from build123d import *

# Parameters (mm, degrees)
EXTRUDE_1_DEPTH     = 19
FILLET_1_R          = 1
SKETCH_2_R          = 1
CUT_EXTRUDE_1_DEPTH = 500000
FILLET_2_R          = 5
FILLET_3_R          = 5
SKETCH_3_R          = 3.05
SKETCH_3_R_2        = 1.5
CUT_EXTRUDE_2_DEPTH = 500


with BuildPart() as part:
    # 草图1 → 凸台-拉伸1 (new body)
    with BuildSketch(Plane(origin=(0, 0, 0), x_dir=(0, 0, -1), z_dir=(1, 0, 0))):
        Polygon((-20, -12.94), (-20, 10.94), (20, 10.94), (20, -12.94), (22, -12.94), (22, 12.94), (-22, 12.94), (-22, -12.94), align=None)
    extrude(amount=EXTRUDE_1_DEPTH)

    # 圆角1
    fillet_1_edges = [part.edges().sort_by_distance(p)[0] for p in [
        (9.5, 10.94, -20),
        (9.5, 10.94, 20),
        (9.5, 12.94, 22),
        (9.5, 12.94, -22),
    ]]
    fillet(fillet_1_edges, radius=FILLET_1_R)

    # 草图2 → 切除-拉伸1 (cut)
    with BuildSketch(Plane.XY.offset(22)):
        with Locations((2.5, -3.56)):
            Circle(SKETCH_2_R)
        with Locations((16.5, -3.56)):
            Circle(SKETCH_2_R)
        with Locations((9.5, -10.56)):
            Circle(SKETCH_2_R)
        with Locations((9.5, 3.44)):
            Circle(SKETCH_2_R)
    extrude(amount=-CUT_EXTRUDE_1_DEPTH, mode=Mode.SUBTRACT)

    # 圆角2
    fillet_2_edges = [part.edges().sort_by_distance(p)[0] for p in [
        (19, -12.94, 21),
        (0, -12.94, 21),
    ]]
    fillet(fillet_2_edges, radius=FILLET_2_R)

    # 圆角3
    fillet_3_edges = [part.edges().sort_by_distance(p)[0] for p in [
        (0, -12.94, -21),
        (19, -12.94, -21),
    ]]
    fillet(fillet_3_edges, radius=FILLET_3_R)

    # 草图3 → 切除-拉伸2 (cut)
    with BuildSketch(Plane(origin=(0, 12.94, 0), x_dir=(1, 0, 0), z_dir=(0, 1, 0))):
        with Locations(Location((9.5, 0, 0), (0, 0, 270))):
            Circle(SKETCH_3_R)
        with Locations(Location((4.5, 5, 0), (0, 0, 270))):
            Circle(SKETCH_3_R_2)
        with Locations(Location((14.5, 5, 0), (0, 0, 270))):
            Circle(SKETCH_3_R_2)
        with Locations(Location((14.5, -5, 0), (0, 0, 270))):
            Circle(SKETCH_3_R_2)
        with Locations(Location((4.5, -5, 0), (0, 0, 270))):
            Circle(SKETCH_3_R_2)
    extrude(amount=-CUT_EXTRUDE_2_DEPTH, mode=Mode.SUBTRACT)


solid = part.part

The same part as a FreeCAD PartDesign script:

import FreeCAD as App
import Part
import Sketcher
from FreeCAD import Vector


def edges_at(feature, points):
    """Names of the edges that pass closest to the given points."""
    edges = feature.Shape.Edges
    near = lambda p: min(range(len(edges)), key=lambda i: edges[i].distToShape(Part.Vertex(*p))[0])
    return sorted({f"Edge{near(p) + 1}" for p in points})


def add_polygon(sketch, points):
    """Adds a closed chain of lines whose ends are joined by coincident constraints."""
    first, n = sketch.GeometryCount, len(points)
    for a, b in zip(points, points[1:] + points[:1]):
        sketch.addGeometry(Part.LineSegment(App.Vector(*a, 0), App.Vector(*b, 0)), False)
    for i in range(n):
        sketch.addConstraint(Sketcher.Constraint("Coincident", first + i, 2, first + (i + 1) % n, 1))

doc = App.newDocument("Part")
body = doc.addObject("PartDesign::Body", "Body")

# Sketch on YZ plane
sketch1 = doc.addObject("Sketcher::SketchObject", "Sketch")
body.addObject(sketch1)
sketch1.AttachmentSupport = (doc.YZ_Plane, [""])
sketch1.MapMode = "FlatFace"
add_polygon(sketch1, [(-12.94, 20), (10.94, 20), (10.94, -20), (-12.94, -20), (-12.94, -22), (12.94, -22), (12.94, 22), (-12.94, 22)])  # lines 0-7
sketch1.addConstraint(Sketcher.Constraint("Horizontal", 0))
sketch1.addConstraint(Sketcher.Constraint("Vertical", 1))
sketch1.addConstraint(Sketcher.Constraint("Horizontal", 2))
sketch1.addConstraint(Sketcher.Constraint("Vertical", 3))
sketch1.addConstraint(Sketcher.Constraint("Horizontal", 4))
sketch1.addConstraint(Sketcher.Constraint("Vertical", 5))
sketch1.addConstraint(Sketcher.Constraint("Horizontal", 6))
sketch1.addConstraint(Sketcher.Constraint("Vertical", 7))
sketch1.addConstraint(Sketcher.Constraint("Symmetric", 3, 2, 5, 2, -1, 1))
sketch1.addConstraint(Sketcher.Constraint("Symmetric", 2, 2, 7, 2, -1))
sketch1.addConstraint(Sketcher.Constraint("DistanceY", 1, 2, 1, 1, 40.0))
sketch1.addConstraint(Sketcher.Constraint("DistanceY", 3, 2, 3, 1, 2.0))
sketch1.addConstraint(Sketcher.Constraint("DistanceX", 1, 2, 4, 2, 2.0))
sketch1.addConstraint(Sketcher.Constraint("DistanceX", 0, 1, 0, 2, 23.88))
pad1 = doc.addObject("PartDesign::Pad", "Pad")
body.addObject(pad1)
pad1.Profile = sketch1
pad1.Length = 19
doc.recompute()

fillet = doc.addObject("PartDesign::Fillet", "Fillet")
body.addObject(fillet)
fillet.Base = (pad1, edges_at(pad1, [
    (9.5, 10.94, -20),
    (9.5, 10.94, 20),
    (9.5, 12.94, 22),
    (9.5, 12.94, -22),
]))
fillet.Radius = 1

# Sketch on XY plane
sketch2 = doc.addObject("Sketcher::SketchObject", "Sketch001")
body.addObject(sketch2)
sketch2.AttachmentSupport = (doc.XY_Plane, [""])
sketch2.MapMode = "FlatFace"
sketch2.AttachmentOffset = App.Placement(Vector(0, 0, 22), App.Rotation())
sketch2.addGeometry(Part.Circle(Vector(2.5, -3.56, 0), Vector(0, 0, 1), 1), False)
sketch2.addGeometry(Part.Circle(Vector(16.5, -3.56, 0), Vector(0, 0, 1), 1), False)
sketch2.addGeometry(Part.Circle(Vector(9.5, -10.56, 0), Vector(0, 0, 1), 1), False)
sketch2.addGeometry(Part.Circle(Vector(9.5, 3.44, 0), Vector(0, 0, 1), 1), False)
sketch2.addConstraint(Sketcher.Constraint("Equal", 0, 1))
sketch2.addConstraint(Sketcher.Constraint("Equal", 1, 2))
sketch2.addConstraint(Sketcher.Constraint("Equal", 2, 3))
sketch2.addConstraint(Sketcher.Constraint("Horizontal", 0, 3, 1, 3))
sketch2.addConstraint(Sketcher.Constraint("Vertical", 2, 3, 3, 3))
sketch2.addConstraint(Sketcher.Constraint("Diameter", 0, 2.0))
sketch2.addConstraint(Sketcher.Constraint("DistanceX", 0, 3, 1, 3, 14.0))
sketch2.addConstraint(Sketcher.Constraint("DistanceX", 0, 3, 2, 3, 7.0))
sketch2.addConstraint(Sketcher.Constraint("DistanceY", 2, 3, 0, 3, 7.0))
sketch2.addConstraint(Sketcher.Constraint("DistanceY", 0, 3, 3, 3, 7.0))
sketch2.addConstraint(Sketcher.Constraint("DistanceX", -1, 1, 0, 3, 2.5))
sketch2.addConstraint(Sketcher.Constraint("DistanceY", 0, 3, -1, 1, 3.56))
pocket1 = doc.addObject("PartDesign::Pocket", "Pocket")
body.addObject(pocket1)
pocket1.Profile = sketch2
pocket1.Length = 500000
doc.recompute()

fillet2 = doc.addObject("PartDesign::Fillet", "Fillet001")
body.addObject(fillet2)
fillet2.Base = (pocket1, edges_at(pocket1, [(19, -12.94, 21), (0, -12.94, 21)]))
fillet2.Radius = 5
doc.recompute()

fillet3 = doc.addObject("PartDesign::Fillet", "Fillet002")
body.addObject(fillet3)
fillet3.Base = (fillet2, edges_at(fillet2, [(0, -12.94, -21), (19, -12.94, -21)]))
fillet3.Radius = 5

# Sketch on XZ plane
sketch3 = doc.addObject("Sketcher::SketchObject", "Sketch002")
body.addObject(sketch3)
sketch3.AttachmentSupport = (doc.XZ_Plane, [""])
sketch3.MapMode = "FlatFace"
sketch3.AttachmentOffset = App.Placement(Vector(0, 0, -12.94), App.Rotation())
sketch3.addGeometry(Part.Circle(Vector(9.5, 0, 0), Vector(0, 0, 1), 3.05), False)
sketch3.addGeometry(Part.Circle(Vector(4.5, -5, 0), Vector(0, 0, 1), 1.5), False)
sketch3.addGeometry(Part.Circle(Vector(14.5, -5, 0), Vector(0, 0, 1), 1.5), False)
sketch3.addGeometry(Part.Circle(Vector(14.5, 5, 0), Vector(0, 0, 1), 1.5), False)
sketch3.addGeometry(Part.Circle(Vector(4.5, 5, 0), Vector(0, 0, 1), 1.5), False)
sketch3.addConstraint(Sketcher.Constraint("Equal", 1, 2))
sketch3.addConstraint(Sketcher.Constraint("Equal", 2, 3))
sketch3.addConstraint(Sketcher.Constraint("Equal", 3, 4))
sketch3.addConstraint(Sketcher.Constraint("Symmetric", 2, 3, 3, 3, -1))
sketch3.addConstraint(Sketcher.Constraint("Symmetric", 1, 3, 4, 3, -1))
sketch3.addConstraint(Sketcher.Constraint("PointOnObject", 0, 3, -1))
sketch3.addConstraint(Sketcher.Constraint("Horizontal", 1, 3, 2, 3))
sketch3.addConstraint(Sketcher.Constraint("Diameter", 1, 3.0))
sketch3.addConstraint(Sketcher.Constraint("Diameter", 0, 6.1))
sketch3.addConstraint(Sketcher.Constraint("DistanceY", 1, 3, -1, 1, 5.0))
sketch3.addConstraint(Sketcher.Constraint("DistanceX", 1, 3, 0, 3, 5.0))
sketch3.addConstraint(Sketcher.Constraint("DistanceX", 0, 3, 2, 3, 5.0))
sketch3.addConstraint(Sketcher.Constraint("DistanceX", -1, 1, 0, 3, 9.5))
pocket2 = doc.addObject("PartDesign::Pocket", "Pocket001")
body.addObject(pocket2)
pocket2.Profile = sketch3
pocket2.Length = 500
pocket2.Reversed = True

doc.recompute()
